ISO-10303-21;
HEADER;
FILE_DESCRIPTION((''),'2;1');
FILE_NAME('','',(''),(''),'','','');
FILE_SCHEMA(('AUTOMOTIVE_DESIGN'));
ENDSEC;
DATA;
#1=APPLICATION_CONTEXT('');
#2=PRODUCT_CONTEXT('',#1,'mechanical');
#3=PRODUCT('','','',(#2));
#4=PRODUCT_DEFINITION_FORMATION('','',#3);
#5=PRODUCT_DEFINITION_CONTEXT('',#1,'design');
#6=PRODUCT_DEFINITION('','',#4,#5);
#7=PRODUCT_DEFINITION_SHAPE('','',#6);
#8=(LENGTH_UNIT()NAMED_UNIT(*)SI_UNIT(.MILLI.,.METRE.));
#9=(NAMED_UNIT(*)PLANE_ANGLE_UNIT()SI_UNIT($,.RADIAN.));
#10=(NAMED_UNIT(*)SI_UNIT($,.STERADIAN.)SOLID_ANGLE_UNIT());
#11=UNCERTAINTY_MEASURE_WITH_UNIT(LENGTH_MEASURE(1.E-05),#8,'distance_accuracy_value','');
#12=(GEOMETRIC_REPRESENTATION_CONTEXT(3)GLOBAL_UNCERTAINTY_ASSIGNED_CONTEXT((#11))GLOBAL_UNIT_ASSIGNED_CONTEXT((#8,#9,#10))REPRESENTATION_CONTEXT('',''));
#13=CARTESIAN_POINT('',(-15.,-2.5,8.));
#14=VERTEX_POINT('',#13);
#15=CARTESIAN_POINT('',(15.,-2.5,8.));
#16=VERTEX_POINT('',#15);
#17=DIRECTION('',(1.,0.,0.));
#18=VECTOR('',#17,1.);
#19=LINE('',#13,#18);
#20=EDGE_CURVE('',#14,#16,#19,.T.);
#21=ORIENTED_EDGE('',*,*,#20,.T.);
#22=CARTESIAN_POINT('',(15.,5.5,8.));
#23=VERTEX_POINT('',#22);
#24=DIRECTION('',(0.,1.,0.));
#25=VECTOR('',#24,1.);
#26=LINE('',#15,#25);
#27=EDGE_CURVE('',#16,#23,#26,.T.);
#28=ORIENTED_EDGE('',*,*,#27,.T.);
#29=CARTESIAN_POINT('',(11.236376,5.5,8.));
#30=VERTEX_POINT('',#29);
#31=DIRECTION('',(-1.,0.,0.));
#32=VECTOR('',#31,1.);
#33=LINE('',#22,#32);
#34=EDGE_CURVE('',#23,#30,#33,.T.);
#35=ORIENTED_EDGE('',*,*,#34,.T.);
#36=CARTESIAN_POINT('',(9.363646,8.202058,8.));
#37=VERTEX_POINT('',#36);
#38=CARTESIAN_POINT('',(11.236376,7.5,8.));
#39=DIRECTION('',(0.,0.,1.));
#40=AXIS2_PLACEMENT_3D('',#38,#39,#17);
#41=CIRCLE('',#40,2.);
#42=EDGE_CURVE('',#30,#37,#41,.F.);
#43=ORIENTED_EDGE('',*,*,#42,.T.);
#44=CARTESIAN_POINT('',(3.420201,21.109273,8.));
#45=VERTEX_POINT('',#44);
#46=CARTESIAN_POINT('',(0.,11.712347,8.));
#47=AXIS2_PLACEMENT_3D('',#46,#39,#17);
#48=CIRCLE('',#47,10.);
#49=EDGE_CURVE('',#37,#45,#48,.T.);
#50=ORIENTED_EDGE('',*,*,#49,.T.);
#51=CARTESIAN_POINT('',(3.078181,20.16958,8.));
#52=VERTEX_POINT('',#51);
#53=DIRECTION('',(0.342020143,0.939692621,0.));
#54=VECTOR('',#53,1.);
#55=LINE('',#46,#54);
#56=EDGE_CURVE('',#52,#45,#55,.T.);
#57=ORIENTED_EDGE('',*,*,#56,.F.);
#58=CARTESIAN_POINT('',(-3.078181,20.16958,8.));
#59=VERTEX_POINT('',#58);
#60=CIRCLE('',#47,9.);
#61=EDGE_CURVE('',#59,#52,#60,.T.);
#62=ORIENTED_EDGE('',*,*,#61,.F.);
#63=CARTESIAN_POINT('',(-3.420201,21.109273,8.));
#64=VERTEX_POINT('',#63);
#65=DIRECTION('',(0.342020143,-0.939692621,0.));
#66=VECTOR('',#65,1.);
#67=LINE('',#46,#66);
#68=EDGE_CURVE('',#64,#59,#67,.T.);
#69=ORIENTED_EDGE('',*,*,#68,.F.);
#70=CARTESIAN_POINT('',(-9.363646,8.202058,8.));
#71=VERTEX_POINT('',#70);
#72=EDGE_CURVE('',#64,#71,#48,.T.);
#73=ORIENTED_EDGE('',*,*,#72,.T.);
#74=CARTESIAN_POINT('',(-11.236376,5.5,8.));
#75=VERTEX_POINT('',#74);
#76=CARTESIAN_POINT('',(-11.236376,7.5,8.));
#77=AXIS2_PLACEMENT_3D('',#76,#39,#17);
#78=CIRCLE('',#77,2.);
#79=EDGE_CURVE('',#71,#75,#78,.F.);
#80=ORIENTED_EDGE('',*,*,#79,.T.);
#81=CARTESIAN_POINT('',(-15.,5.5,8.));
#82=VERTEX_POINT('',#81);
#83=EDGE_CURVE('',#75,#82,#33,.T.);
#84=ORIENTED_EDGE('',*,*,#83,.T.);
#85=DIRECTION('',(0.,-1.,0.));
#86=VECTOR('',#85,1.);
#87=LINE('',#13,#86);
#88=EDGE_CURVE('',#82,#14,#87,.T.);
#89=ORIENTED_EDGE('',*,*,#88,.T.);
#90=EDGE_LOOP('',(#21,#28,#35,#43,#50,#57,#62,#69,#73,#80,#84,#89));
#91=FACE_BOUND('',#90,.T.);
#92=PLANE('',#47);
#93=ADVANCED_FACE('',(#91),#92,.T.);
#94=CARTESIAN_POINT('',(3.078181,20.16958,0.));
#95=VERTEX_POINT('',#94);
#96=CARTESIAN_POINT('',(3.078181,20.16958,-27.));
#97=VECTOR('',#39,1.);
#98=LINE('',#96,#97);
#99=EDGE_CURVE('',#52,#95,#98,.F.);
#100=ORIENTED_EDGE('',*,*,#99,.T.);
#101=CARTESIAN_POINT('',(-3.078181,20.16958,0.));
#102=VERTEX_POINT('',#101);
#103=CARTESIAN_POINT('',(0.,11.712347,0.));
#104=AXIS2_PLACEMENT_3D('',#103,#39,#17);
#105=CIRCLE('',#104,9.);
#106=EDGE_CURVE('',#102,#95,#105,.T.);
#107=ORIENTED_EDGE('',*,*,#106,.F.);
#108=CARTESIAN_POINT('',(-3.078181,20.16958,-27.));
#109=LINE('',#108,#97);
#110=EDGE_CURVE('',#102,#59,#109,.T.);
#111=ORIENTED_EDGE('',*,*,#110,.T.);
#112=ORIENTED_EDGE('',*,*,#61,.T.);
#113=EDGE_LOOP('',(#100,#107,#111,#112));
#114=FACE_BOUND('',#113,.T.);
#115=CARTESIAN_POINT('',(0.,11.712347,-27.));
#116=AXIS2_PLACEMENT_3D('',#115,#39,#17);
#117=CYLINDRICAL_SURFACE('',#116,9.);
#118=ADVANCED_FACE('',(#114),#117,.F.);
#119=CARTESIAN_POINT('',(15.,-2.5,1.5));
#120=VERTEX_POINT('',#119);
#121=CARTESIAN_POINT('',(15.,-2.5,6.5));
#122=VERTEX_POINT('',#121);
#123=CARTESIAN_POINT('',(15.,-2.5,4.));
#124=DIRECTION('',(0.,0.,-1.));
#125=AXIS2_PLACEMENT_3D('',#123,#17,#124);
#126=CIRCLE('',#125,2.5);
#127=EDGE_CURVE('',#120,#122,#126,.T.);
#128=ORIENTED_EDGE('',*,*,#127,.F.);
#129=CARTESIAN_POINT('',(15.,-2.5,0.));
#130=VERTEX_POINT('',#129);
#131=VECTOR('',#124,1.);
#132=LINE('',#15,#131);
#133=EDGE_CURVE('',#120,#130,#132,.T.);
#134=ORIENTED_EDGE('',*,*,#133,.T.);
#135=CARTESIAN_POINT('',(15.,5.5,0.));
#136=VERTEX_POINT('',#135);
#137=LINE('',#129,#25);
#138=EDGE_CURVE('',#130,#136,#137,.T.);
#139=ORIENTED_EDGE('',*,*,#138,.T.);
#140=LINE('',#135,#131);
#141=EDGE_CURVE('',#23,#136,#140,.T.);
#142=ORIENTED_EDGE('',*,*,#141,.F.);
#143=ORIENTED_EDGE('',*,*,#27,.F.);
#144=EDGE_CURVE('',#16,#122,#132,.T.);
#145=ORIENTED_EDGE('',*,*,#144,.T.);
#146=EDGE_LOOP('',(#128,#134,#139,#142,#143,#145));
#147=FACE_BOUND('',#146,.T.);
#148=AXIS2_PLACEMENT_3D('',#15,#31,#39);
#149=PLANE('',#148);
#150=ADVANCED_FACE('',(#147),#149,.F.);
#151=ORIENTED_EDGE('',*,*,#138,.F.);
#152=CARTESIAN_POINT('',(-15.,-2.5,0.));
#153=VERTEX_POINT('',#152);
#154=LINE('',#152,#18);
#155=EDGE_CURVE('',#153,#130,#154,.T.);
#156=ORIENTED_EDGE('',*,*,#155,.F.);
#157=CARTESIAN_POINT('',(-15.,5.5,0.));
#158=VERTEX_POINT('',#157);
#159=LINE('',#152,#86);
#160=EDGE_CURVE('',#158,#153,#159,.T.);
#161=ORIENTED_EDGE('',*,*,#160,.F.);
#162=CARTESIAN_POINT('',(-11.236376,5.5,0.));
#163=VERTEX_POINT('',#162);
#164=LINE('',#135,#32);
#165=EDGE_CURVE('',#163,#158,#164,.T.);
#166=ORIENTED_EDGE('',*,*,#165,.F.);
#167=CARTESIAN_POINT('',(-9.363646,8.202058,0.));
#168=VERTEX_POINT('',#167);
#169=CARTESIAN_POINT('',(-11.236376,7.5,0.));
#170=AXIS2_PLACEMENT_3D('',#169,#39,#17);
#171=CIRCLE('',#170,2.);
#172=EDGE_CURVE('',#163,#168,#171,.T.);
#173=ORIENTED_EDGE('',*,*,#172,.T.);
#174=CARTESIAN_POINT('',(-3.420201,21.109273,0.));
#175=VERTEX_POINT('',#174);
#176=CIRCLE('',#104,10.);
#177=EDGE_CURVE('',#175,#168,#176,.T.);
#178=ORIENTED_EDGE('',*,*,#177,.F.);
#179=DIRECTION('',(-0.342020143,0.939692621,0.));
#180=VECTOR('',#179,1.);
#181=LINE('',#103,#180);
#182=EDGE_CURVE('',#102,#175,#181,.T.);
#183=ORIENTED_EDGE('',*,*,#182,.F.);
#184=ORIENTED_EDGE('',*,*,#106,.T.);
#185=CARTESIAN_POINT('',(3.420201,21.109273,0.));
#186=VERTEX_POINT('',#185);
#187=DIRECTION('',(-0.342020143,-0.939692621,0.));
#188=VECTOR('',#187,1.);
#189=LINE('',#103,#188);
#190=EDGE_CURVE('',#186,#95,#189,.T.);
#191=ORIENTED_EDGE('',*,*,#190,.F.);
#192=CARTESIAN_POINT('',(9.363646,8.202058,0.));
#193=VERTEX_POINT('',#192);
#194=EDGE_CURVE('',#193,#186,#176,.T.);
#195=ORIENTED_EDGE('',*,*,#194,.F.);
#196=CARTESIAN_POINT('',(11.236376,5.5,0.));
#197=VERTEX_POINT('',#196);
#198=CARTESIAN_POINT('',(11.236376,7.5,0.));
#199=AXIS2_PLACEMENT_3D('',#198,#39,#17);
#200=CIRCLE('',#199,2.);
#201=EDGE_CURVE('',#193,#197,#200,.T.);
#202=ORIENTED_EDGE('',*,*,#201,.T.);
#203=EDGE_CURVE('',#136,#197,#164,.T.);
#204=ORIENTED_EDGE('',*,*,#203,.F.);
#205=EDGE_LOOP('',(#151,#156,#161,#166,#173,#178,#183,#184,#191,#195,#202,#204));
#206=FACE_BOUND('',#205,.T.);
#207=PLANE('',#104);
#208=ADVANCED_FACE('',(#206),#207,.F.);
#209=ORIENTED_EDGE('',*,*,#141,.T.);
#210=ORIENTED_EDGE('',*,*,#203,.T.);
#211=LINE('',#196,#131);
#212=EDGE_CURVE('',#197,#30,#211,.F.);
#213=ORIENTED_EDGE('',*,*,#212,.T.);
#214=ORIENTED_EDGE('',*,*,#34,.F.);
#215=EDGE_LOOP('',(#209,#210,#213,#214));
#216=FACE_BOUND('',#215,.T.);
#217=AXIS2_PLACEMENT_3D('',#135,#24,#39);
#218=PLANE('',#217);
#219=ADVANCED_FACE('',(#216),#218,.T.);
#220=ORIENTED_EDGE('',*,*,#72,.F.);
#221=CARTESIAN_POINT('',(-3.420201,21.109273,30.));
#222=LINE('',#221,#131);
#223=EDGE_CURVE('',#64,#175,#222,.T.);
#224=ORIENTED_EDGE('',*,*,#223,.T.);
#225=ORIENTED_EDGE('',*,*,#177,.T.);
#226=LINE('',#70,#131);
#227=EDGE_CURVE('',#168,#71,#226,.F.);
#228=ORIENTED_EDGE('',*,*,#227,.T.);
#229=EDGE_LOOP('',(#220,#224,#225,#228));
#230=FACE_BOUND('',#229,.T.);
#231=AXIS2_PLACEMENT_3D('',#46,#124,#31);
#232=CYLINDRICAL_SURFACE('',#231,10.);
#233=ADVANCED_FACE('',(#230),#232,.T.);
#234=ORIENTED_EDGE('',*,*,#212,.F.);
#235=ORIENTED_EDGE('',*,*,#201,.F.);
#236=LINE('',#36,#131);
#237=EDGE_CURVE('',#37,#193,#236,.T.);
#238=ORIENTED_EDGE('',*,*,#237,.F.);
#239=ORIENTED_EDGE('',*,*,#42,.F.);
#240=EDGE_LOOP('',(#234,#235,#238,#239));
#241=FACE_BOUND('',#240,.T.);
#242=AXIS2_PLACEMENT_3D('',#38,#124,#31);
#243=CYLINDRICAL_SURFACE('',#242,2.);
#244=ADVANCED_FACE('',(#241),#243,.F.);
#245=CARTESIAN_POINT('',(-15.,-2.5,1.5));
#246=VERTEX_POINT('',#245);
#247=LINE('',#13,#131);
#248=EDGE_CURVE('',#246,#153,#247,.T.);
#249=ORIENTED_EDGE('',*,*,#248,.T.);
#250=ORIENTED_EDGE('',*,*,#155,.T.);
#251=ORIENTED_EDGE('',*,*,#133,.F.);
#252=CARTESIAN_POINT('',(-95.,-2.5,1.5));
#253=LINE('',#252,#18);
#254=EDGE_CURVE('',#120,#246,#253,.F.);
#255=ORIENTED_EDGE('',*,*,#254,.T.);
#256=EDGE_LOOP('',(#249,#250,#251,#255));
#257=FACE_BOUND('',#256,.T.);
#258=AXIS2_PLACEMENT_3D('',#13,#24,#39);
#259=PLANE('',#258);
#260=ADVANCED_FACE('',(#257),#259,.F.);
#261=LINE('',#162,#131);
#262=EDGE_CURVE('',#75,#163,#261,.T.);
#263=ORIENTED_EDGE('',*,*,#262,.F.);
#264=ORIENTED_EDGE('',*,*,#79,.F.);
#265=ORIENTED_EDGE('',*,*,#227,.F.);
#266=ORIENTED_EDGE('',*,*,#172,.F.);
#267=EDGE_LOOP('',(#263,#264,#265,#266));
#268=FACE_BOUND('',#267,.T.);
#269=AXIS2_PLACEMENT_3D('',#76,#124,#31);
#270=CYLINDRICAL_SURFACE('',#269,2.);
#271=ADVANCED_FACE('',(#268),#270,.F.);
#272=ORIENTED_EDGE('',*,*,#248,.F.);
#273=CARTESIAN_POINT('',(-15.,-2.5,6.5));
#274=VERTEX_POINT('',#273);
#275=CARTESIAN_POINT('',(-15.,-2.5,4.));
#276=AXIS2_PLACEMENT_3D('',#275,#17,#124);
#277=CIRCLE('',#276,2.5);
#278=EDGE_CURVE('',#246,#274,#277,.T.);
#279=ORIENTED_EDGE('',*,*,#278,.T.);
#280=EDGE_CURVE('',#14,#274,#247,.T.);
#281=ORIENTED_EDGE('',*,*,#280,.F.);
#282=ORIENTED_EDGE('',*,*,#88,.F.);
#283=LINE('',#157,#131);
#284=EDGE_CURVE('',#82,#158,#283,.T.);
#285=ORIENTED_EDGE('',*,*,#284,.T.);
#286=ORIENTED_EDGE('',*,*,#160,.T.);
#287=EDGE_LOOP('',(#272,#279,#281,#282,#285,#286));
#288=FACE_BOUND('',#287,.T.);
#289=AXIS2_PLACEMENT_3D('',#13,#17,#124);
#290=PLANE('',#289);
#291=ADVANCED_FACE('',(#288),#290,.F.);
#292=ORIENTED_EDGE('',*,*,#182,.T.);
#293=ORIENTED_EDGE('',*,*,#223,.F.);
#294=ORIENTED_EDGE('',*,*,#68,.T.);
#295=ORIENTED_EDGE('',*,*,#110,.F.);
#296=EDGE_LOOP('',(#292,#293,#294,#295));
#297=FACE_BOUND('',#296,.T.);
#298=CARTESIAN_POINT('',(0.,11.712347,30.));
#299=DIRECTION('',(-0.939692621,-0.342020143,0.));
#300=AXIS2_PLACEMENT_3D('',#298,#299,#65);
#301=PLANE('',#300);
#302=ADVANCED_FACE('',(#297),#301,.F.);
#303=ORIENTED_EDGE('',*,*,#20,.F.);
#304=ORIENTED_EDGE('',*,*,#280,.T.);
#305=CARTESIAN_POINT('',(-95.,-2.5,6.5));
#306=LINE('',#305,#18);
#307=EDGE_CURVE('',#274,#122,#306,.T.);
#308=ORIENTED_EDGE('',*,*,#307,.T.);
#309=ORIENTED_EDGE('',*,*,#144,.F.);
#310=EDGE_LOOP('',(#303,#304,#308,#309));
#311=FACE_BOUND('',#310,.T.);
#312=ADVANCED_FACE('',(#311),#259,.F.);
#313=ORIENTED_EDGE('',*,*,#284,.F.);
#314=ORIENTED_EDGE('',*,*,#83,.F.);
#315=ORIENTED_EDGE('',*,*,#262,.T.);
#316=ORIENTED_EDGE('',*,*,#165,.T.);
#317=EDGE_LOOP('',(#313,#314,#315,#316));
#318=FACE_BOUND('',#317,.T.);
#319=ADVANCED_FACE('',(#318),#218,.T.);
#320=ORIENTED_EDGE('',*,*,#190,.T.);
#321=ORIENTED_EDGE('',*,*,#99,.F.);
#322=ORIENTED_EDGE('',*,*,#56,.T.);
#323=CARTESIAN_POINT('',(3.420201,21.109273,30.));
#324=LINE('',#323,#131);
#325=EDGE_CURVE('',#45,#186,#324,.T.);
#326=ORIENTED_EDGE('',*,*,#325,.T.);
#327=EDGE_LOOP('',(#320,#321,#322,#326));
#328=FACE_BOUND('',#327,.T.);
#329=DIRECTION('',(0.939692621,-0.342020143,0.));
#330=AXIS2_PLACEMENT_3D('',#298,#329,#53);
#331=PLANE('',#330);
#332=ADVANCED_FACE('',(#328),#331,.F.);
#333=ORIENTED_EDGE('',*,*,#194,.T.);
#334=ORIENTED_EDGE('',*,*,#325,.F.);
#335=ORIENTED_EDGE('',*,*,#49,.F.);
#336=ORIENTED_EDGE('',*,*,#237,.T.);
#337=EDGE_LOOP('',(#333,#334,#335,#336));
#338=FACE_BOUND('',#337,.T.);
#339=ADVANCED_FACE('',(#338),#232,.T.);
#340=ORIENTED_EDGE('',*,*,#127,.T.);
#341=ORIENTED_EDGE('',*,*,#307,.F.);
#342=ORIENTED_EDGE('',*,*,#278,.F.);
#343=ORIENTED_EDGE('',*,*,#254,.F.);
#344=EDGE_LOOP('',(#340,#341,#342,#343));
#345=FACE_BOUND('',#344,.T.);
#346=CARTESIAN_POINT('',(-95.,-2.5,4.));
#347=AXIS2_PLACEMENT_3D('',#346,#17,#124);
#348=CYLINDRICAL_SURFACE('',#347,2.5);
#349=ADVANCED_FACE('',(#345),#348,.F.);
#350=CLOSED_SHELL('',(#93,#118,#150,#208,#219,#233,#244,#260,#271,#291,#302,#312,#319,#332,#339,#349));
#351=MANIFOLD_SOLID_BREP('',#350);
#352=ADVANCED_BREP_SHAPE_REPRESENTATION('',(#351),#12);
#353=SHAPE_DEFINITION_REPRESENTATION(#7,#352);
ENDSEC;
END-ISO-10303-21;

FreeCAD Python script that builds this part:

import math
import FreeCAD as App
import Part
import Sketcher
Q = App.Units.Quantity


def edges_at(feature, points):
    """Names of the edges that pass closest to the given points."""
    edges = feature.Shape.Edges
    near = lambda p: min(range(len(edges)), key=lambda i: edges[i].distToShape(Part.Vertex(*p))[0])
    return sorted({f"Edge{near(p) + 1}" for p in points})

doc = App.newDocument("Part")
body = doc.addObject("PartDesign::Body", "Body")

# Sketch on XY plane
sketch1 = body.newObject("Sketcher::SketchObject", "Sketch")
sketch1.AttachmentSupport = (doc.getObject("XY_Plane"), [""])
sketch1.MapMode = "FlatFace"
sketch1.addGeometry([
    Part.LineSegment(App.Vector(15, 2, 0), App.Vector(4, 2, 0)),  # 0
    Part.ArcOfCircle(Part.Circle(App.Vector(0, 12, 0), App.Vector(0, 0, 1), 10), math.radians(-67), math.radians(247)),  # 1
    Part.LineSegment(App.Vector(-4, 2, 0), App.Vector(-15, 2, 0)),  # 2
    Part.LineSegment(App.Vector(-15, 2, 0), App.Vector(-15, -2, 0)),  # 3
    Part.LineSegment(App.Vector(-15, -2, 0), App.Vector(15, -2, 0)),  # 4
    Part.LineSegment(App.Vector(15, -2, 0), App.Vector(15, 2, 0)),  # 5
], False)
sketch1.addConstraint([
    Sketcher.Constraint("Coincident", 0, 2, 1, 1),
    Sketcher.Constraint("Coincident", 1, 2, 2, 1),
    Sketcher.Constraint("Coincident", 2, 2, 3, 1),
    Sketcher.Constraint("Coincident", 3, 2, 4, 1),
    Sketcher.Constraint("Coincident", 4, 2, 5, 1),
    Sketcher.Constraint("Coincident", 5, 2, 0, 1),
    Sketcher.Constraint("Horizontal", 0),
    Sketcher.Constraint("Horizontal", 2),
    Sketcher.Constraint("Vertical", 3),
    Sketcher.Constraint("Horizontal", 4),
    Sketcher.Constraint("Vertical", 5),
    Sketcher.Constraint("Symmetric", 2, 2, 4, 2, -1, 1),
    Sketcher.Constraint("Symmetric", 0, 2, 1, 2, -2),
    Sketcher.Constraint("Radius", 1, 10.0),
    Sketcher.Constraint("DistanceX", 4, 1, 4, 2, 30.0),
    Sketcher.Constraint("DistanceY", 3, 2, 3, 1, 5.0),
    Sketcher.Constraint("DistanceX", 0, 2, 0, 1, 11.109927),
])
pad1 = body.newObject("PartDesign::Pad", "Pad")
pad1.Profile = sketch1
pad1.Length = 8

# Sketch on XY plane
sketch2 = body.newObject("Sketcher::SketchObject", "Sketch001")
sketch2.AttachmentSupport = (doc.getObject("XY_Plane"), [""])
sketch2.MapMode = "FlatFace"
sketch2.AttachmentOffset = App.Placement(App.Vector(0, 0, 8), App.Rotation())
sketch2.addGeometry(Part.Circle(App.Vector(0, 12, 0), App.Vector(0, 0, 1), 9), False)
sketch2.addConstraint([
    Sketcher.Constraint("PointOnObject", 0, 3, -2),
    Sketcher.Constraint("Diameter", 0, 18.0),
    Sketcher.Constraint("DistanceY", -1, 1, 0, 3, 11.712347),
])
pocket1 = body.newObject("PartDesign::Pocket", "Pocket")
pocket1.Profile = sketch2
pocket1.Length = 35

# Sketch on XY plane
sketch3 = body.newObject("Sketcher::SketchObject", "Sketch002")
sketch3.AttachmentSupport = (doc.getObject("XY_Plane"), [""])
sketch3.MapMode = "FlatFace"
sketch3.addGeometry([
    Part.LineSegment(App.Vector(0.2, 22.5, 0), App.Vector(0.2, 20.6, 0)),
    Part.LineSegment(App.Vector(0.2, 20.6, 0), App.Vector(-0.2, 20.6, 0)),
    Part.LineSegment(App.Vector(-0.2, 20.6, 0), App.Vector(-0.2, 22.5, 0)),
    Part.LineSegment(App.Vector(-0.2, 22.5, 0), App.Vector(0.2, 22.5, 0)),
], False)
sketch3.addConstraint([
    Sketcher.Constraint("Coincident", 0, 2, 1, 1),
    Sketcher.Constraint("Coincident", 1, 2, 2, 1),
    Sketcher.Constraint("Coincident", 2, 2, 3, 1),
    Sketcher.Constraint("Coincident", 3, 2, 0, 1),
    Sketcher.Constraint("Vertical", 0),
    Sketcher.Constraint("Horizontal", 1),
    Sketcher.Constraint("Vertical", 2),
    Sketcher.Constraint("Horizontal", 3),
    Sketcher.Constraint("DistanceX", 1, 2, 1, 1, 0.5),
    Sketcher.Constraint("DistanceX", -1, 1, 0, 2, 0.25),
    Sketcher.Constraint("DistanceY", 0, 2, 0, 1, 1.875425),
    Sketcher.Constraint("DistanceY", -1, 1, 0, 2, 20.583771),
])
pocket2 = body.newObject("PartDesign::Pocket", "Pocket001")
pocket2.Profile = sketch3
pocket2.Length = 25
pocket2.Reversed = True

# Sketch on YZ plane
sketch4 = body.newObject("Sketcher::SketchObject", "Sketch003")
sketch4.AttachmentSupport = (doc.getObject("YZ_Plane"), [""])
sketch4.MapMode = "FlatFace"
sketch4.AttachmentOffset = App.Placement(App.Vector(0, 0, 15), App.Rotation())
sketch4.addGeometry(Part.Circle(App.Vector(-2.5, 4, 0), App.Vector(0, 0, 1), 2.5), False)
sketch4.addConstraint([
    Sketcher.Constraint("Diameter", 0, 5.0),
    Sketcher.Constraint("DistanceY", -1, 1, 0, 3, 4.0),
    Sketcher.Constraint("DistanceX", 0, 3, -1, 1, 2.5),
])
pocket3 = body.newObject("PartDesign::Pocket", "Pocket002")
pocket3.Profile = sketch4
pocket3.Length = 110

# Sketch on XY plane
sketch5 = body.newObject("Sketcher::SketchObject", "Sketch004")
sketch5.AttachmentSupport = (doc.getObject("XY_Plane"), [""])
sketch5.MapMode = "FlatFace"
sketch5.AttachmentOffset = App.Placement(App.Vector(0, 0, 8), App.Rotation())
sketch5.addGeometry([
    Part.LineSegment(App.Vector(-2, 26, 0), App.Vector(-2, 19, 0)),
    Part.LineSegment(App.Vector(-2, 19, 0), App.Vector(2, 19, 0)),
    Part.LineSegment(App.Vector(2, 19, 0), App.Vector(2, 26, 0)),
    Part.LineSegment(App.Vector(2, 26, 0), App.Vector(-2, 26, 0)),
], False)
sketch5.addConstraint([
    Sketcher.Constraint("Coincident", 0, 2, 1, 1),
    Sketcher.Constraint("Coincident", 1, 2, 2, 1),
    Sketcher.Constraint("Coincident", 2, 2, 3, 1),
    Sketcher.Constraint("Coincident", 3, 2, 0, 1),
    Sketcher.Constraint("Vertical", 0),
    Sketcher.Constraint("Horizontal", 1),
    Sketcher.Constraint("Vertical", 2),
    Sketcher.Constraint("Horizontal", 3),
    Sketcher.Constraint("DistanceX", 1, 1, 1, 2, 5.0),
    Sketcher.Constraint("DistanceX", 0, 2, -1, 1, 2.5),
    Sketcher.Constraint("DistanceY", 0, 2, 0, 1, 7.147199),
    Sketcher.Constraint("DistanceY", -1, 1, 0, 2, 19.158147),
])
pocket4 = body.newObject("PartDesign::Pocket", "Pocket003")
pocket4.Profile = sketch5
pocket4.Length = 10
doc.recompute()

fillet = body.newObject("PartDesign::Fillet", "Fillet")
fillet.Base = (pocket4, edges_at(pocket4, [(-3.89, 2.5, 4), (3.89, 2.5, 4)]))
fillet.Radius = 0.5

# Sketch on YZ plane
sketch6 = body.newObject("Sketcher::SketchObject", "Sketch005")
sketch6.AttachmentSupport = (doc.getObject("YZ_Plane"), [""])
sketch6.MapMode = "FlatFace"
sketch6.AttachmentOffset = App.Placement(App.Vector(0, 0, -15), App.Rotation())
sketch6.addGeometry([
    Part.LineSegment(App.Vector(5.5, 0, 0), App.Vector(2.5, 0, 0)),
    Part.LineSegment(App.Vector(2.5, 0, 0), App.Vector(2.5, 8, 0)),
    Part.LineSegment(App.Vector(2.5, 8, 0), App.Vector(5.5, 8, 0)),
    Part.LineSegment(App.Vector(5.5, 8, 0), App.Vector(5.5, 0, 0)),
], False)
sketch6.addConstraint([
    Sketcher.Constraint("Coincident", 0, 2, 1, 1),
    Sketcher.Constraint("Coincident", 1, 2, 2, 1),
    Sketcher.Constraint("Coincident", 2, 2, 3, 1),
    Sketcher.Constraint("Coincident", 3, 2, 0, 1),
    Sketcher.Constraint("Horizontal", 0),
    Sketcher.Constraint("Vertical", 1),
    Sketcher.Constraint("Horizontal", 2),
    Sketcher.Constraint("Vertical", 3),
    Sketcher.Constraint("PointOnObject", 0, 2, -1),
    Sketcher.Constraint("DistanceX", 0, 2, 0, 1, 3.0),
    Sketcher.Constraint("DistanceY", 1, 1, 1, 2, 8.0),
    Sketcher.Constraint("DistanceX", -1, 1, 0, 2, 2.5),
])
pad2 = body.newObject("PartDesign::Pad", "Pad001")
pad2.Profile = sketch6
pad2.Length = 30

# Sketch on XY plane
sketch7 = body.newObject("Sketcher::SketchObject", "Sketch006")
sketch7.AttachmentSupport = (doc.getObject("XY_Plane"), [""])
sketch7.MapMode = "FlatFace"
sketch7.addGeometry(Part.Circle(App.Vector(0, 12, 0), App.Vector(0, 0, 1), 9), False)
sketch7.addConstraint([
    Sketcher.Constraint("PointOnObject", 0, 3, -2),
    Sketcher.Constraint("Diameter", 0, 18.0),
    Sketcher.Constraint("DistanceY", -1, 1, 0, 3, 11.712347),
])
pocket5 = body.newObject("PartDesign::Pocket", "Pocket004")
pocket5.Profile = sketch7
pocket5.Length = 30
pocket5.Reversed = True
doc.recompute()

fillet2 = body.newObject("PartDesign::Fillet", "Fillet001")
fillet2.Base = (pocket5, edges_at(pocket5, [(-7.836, 5.5, 4), (7.836, 5.5, 4)]))
fillet2.Radius = 2

# Sketch on XY plane
sketch8 = body.newObject("Sketcher::SketchObject", "Sketch007")
sketch8.AttachmentSupport = (doc.getObject("XY_Plane"), [""])
sketch8.MapMode = "FlatFace"
sketch8.addGeometry([
    Part.LineSegment(App.Vector(0, 11.7, 0), App.Vector(-3.4, 21.1, 0)),
    Part.ArcOfCircle(Part.Circle(App.Vector(0, 21.1, 0), App.Vector(0, 0, 1), 3.4), math.radians(0), math.radians(180)),
    Part.LineSegment(App.Vector(3.4, 21.1, 0), App.Vector(0, 11.7, 0)),
], False)
sketch8.addConstraint([
    Sketcher.Constraint("Coincident", 0, 2, 1, 2),
    Sketcher.Constraint("Coincident", 1, 1, 2, 1),
    Sketcher.Constraint("Coincident", 2, 2, 0, 1),
    Sketcher.Constraint("Symmetric", 0, 2, 1, 1, -2),
    Sketcher.Constraint("PointOnObject", 2, 2, -2),
    Sketcher.Constraint("Horizontal", 1, 3, 0, 2),
    Sketcher.Constraint("Angle", 0, Q("110 deg")),
    Sketcher.Constraint("Distance", 0, 10.0),
    Sketcher.Constraint("DistanceY", -1, 1, 1, 3, 21.109273),
])
pocket6 = body.newObject("PartDesign::Pocket", "Pocket005")
pocket6.Profile = sketch8
pocket6.Length = 30
pocket6.Reversed = True

doc.recompute()
